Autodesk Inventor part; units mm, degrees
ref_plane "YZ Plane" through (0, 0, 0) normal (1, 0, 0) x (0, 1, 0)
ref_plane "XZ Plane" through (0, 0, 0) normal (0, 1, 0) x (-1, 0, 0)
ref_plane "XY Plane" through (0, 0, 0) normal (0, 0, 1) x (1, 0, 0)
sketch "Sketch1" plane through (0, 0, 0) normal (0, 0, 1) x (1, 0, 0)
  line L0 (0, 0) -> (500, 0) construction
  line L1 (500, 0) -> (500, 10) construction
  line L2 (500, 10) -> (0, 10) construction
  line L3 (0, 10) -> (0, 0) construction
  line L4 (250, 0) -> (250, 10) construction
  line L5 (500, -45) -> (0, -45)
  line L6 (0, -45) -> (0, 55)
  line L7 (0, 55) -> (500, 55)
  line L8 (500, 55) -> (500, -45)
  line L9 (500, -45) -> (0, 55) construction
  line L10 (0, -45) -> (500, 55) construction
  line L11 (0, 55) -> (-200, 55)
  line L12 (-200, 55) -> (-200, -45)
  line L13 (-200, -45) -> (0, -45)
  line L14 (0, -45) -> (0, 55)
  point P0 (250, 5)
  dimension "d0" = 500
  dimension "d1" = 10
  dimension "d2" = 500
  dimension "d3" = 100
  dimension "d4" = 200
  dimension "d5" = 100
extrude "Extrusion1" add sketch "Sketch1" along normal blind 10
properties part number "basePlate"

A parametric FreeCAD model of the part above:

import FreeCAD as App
import Part
import Sketcher
from FreeCAD import Vector
Q = App.Units.Quantity


def add_polygon(sketch, points):
    """Adds a closed chain of lines whose ends are joined by coincident constraints."""
    first, n = sketch.GeometryCount, len(points)
    for a, b in zip(points, points[1:] + points[:1]):
        sketch.addGeometry(Part.LineSegment(App.Vector(*a, 0), App.Vector(*b, 0)), False)
    for i in range(n):
        sketch.addConstraint(Sketcher.Constraint("Coincident", first + i, 2, first + (i + 1) % n, 1))

doc = App.newDocument("Part")
body = doc.addObject("PartDesign::Body", "Body")

# Sketch on XY plane
sketch1 = doc.addObject("Sketcher::SketchObject", "Sketch")
body.addObject(sketch1)
sketch1.AttachmentSupport = (doc.XY_Plane, [""])
sketch1.MapMode = "FlatFace"
add_polygon(sketch1, [(500, -45), (500, 55), (-200, 55), (-200, -45)])  # lines 0-3
sketch1.addConstraint([
    Sketcher.Constraint("Vertical", 0),
    Sketcher.Constraint("Horizontal", 1),
    Sketcher.Constraint("Vertical", 2),
    Sketcher.Constraint("Horizontal", 3),
    Sketcher.Constraint("DistanceY", 0, 1, 0, 2, Q("100 mm")),
    Sketcher.Constraint("DistanceX", -1, 1, 0, 2, Q("500 mm")),
    Sketcher.Constraint("DistanceX", 1, 2, -1, 1, Q("200 mm")),
    Sketcher.Constraint("DistanceY", -1, 1, 0, 2, Q("55 mm")),
])
pad1 = doc.addObject("PartDesign::Pad", "Pad")
body.addObject(pad1)
pad1.Profile = sketch1
pad1.Length = 10

doc.recompute()
